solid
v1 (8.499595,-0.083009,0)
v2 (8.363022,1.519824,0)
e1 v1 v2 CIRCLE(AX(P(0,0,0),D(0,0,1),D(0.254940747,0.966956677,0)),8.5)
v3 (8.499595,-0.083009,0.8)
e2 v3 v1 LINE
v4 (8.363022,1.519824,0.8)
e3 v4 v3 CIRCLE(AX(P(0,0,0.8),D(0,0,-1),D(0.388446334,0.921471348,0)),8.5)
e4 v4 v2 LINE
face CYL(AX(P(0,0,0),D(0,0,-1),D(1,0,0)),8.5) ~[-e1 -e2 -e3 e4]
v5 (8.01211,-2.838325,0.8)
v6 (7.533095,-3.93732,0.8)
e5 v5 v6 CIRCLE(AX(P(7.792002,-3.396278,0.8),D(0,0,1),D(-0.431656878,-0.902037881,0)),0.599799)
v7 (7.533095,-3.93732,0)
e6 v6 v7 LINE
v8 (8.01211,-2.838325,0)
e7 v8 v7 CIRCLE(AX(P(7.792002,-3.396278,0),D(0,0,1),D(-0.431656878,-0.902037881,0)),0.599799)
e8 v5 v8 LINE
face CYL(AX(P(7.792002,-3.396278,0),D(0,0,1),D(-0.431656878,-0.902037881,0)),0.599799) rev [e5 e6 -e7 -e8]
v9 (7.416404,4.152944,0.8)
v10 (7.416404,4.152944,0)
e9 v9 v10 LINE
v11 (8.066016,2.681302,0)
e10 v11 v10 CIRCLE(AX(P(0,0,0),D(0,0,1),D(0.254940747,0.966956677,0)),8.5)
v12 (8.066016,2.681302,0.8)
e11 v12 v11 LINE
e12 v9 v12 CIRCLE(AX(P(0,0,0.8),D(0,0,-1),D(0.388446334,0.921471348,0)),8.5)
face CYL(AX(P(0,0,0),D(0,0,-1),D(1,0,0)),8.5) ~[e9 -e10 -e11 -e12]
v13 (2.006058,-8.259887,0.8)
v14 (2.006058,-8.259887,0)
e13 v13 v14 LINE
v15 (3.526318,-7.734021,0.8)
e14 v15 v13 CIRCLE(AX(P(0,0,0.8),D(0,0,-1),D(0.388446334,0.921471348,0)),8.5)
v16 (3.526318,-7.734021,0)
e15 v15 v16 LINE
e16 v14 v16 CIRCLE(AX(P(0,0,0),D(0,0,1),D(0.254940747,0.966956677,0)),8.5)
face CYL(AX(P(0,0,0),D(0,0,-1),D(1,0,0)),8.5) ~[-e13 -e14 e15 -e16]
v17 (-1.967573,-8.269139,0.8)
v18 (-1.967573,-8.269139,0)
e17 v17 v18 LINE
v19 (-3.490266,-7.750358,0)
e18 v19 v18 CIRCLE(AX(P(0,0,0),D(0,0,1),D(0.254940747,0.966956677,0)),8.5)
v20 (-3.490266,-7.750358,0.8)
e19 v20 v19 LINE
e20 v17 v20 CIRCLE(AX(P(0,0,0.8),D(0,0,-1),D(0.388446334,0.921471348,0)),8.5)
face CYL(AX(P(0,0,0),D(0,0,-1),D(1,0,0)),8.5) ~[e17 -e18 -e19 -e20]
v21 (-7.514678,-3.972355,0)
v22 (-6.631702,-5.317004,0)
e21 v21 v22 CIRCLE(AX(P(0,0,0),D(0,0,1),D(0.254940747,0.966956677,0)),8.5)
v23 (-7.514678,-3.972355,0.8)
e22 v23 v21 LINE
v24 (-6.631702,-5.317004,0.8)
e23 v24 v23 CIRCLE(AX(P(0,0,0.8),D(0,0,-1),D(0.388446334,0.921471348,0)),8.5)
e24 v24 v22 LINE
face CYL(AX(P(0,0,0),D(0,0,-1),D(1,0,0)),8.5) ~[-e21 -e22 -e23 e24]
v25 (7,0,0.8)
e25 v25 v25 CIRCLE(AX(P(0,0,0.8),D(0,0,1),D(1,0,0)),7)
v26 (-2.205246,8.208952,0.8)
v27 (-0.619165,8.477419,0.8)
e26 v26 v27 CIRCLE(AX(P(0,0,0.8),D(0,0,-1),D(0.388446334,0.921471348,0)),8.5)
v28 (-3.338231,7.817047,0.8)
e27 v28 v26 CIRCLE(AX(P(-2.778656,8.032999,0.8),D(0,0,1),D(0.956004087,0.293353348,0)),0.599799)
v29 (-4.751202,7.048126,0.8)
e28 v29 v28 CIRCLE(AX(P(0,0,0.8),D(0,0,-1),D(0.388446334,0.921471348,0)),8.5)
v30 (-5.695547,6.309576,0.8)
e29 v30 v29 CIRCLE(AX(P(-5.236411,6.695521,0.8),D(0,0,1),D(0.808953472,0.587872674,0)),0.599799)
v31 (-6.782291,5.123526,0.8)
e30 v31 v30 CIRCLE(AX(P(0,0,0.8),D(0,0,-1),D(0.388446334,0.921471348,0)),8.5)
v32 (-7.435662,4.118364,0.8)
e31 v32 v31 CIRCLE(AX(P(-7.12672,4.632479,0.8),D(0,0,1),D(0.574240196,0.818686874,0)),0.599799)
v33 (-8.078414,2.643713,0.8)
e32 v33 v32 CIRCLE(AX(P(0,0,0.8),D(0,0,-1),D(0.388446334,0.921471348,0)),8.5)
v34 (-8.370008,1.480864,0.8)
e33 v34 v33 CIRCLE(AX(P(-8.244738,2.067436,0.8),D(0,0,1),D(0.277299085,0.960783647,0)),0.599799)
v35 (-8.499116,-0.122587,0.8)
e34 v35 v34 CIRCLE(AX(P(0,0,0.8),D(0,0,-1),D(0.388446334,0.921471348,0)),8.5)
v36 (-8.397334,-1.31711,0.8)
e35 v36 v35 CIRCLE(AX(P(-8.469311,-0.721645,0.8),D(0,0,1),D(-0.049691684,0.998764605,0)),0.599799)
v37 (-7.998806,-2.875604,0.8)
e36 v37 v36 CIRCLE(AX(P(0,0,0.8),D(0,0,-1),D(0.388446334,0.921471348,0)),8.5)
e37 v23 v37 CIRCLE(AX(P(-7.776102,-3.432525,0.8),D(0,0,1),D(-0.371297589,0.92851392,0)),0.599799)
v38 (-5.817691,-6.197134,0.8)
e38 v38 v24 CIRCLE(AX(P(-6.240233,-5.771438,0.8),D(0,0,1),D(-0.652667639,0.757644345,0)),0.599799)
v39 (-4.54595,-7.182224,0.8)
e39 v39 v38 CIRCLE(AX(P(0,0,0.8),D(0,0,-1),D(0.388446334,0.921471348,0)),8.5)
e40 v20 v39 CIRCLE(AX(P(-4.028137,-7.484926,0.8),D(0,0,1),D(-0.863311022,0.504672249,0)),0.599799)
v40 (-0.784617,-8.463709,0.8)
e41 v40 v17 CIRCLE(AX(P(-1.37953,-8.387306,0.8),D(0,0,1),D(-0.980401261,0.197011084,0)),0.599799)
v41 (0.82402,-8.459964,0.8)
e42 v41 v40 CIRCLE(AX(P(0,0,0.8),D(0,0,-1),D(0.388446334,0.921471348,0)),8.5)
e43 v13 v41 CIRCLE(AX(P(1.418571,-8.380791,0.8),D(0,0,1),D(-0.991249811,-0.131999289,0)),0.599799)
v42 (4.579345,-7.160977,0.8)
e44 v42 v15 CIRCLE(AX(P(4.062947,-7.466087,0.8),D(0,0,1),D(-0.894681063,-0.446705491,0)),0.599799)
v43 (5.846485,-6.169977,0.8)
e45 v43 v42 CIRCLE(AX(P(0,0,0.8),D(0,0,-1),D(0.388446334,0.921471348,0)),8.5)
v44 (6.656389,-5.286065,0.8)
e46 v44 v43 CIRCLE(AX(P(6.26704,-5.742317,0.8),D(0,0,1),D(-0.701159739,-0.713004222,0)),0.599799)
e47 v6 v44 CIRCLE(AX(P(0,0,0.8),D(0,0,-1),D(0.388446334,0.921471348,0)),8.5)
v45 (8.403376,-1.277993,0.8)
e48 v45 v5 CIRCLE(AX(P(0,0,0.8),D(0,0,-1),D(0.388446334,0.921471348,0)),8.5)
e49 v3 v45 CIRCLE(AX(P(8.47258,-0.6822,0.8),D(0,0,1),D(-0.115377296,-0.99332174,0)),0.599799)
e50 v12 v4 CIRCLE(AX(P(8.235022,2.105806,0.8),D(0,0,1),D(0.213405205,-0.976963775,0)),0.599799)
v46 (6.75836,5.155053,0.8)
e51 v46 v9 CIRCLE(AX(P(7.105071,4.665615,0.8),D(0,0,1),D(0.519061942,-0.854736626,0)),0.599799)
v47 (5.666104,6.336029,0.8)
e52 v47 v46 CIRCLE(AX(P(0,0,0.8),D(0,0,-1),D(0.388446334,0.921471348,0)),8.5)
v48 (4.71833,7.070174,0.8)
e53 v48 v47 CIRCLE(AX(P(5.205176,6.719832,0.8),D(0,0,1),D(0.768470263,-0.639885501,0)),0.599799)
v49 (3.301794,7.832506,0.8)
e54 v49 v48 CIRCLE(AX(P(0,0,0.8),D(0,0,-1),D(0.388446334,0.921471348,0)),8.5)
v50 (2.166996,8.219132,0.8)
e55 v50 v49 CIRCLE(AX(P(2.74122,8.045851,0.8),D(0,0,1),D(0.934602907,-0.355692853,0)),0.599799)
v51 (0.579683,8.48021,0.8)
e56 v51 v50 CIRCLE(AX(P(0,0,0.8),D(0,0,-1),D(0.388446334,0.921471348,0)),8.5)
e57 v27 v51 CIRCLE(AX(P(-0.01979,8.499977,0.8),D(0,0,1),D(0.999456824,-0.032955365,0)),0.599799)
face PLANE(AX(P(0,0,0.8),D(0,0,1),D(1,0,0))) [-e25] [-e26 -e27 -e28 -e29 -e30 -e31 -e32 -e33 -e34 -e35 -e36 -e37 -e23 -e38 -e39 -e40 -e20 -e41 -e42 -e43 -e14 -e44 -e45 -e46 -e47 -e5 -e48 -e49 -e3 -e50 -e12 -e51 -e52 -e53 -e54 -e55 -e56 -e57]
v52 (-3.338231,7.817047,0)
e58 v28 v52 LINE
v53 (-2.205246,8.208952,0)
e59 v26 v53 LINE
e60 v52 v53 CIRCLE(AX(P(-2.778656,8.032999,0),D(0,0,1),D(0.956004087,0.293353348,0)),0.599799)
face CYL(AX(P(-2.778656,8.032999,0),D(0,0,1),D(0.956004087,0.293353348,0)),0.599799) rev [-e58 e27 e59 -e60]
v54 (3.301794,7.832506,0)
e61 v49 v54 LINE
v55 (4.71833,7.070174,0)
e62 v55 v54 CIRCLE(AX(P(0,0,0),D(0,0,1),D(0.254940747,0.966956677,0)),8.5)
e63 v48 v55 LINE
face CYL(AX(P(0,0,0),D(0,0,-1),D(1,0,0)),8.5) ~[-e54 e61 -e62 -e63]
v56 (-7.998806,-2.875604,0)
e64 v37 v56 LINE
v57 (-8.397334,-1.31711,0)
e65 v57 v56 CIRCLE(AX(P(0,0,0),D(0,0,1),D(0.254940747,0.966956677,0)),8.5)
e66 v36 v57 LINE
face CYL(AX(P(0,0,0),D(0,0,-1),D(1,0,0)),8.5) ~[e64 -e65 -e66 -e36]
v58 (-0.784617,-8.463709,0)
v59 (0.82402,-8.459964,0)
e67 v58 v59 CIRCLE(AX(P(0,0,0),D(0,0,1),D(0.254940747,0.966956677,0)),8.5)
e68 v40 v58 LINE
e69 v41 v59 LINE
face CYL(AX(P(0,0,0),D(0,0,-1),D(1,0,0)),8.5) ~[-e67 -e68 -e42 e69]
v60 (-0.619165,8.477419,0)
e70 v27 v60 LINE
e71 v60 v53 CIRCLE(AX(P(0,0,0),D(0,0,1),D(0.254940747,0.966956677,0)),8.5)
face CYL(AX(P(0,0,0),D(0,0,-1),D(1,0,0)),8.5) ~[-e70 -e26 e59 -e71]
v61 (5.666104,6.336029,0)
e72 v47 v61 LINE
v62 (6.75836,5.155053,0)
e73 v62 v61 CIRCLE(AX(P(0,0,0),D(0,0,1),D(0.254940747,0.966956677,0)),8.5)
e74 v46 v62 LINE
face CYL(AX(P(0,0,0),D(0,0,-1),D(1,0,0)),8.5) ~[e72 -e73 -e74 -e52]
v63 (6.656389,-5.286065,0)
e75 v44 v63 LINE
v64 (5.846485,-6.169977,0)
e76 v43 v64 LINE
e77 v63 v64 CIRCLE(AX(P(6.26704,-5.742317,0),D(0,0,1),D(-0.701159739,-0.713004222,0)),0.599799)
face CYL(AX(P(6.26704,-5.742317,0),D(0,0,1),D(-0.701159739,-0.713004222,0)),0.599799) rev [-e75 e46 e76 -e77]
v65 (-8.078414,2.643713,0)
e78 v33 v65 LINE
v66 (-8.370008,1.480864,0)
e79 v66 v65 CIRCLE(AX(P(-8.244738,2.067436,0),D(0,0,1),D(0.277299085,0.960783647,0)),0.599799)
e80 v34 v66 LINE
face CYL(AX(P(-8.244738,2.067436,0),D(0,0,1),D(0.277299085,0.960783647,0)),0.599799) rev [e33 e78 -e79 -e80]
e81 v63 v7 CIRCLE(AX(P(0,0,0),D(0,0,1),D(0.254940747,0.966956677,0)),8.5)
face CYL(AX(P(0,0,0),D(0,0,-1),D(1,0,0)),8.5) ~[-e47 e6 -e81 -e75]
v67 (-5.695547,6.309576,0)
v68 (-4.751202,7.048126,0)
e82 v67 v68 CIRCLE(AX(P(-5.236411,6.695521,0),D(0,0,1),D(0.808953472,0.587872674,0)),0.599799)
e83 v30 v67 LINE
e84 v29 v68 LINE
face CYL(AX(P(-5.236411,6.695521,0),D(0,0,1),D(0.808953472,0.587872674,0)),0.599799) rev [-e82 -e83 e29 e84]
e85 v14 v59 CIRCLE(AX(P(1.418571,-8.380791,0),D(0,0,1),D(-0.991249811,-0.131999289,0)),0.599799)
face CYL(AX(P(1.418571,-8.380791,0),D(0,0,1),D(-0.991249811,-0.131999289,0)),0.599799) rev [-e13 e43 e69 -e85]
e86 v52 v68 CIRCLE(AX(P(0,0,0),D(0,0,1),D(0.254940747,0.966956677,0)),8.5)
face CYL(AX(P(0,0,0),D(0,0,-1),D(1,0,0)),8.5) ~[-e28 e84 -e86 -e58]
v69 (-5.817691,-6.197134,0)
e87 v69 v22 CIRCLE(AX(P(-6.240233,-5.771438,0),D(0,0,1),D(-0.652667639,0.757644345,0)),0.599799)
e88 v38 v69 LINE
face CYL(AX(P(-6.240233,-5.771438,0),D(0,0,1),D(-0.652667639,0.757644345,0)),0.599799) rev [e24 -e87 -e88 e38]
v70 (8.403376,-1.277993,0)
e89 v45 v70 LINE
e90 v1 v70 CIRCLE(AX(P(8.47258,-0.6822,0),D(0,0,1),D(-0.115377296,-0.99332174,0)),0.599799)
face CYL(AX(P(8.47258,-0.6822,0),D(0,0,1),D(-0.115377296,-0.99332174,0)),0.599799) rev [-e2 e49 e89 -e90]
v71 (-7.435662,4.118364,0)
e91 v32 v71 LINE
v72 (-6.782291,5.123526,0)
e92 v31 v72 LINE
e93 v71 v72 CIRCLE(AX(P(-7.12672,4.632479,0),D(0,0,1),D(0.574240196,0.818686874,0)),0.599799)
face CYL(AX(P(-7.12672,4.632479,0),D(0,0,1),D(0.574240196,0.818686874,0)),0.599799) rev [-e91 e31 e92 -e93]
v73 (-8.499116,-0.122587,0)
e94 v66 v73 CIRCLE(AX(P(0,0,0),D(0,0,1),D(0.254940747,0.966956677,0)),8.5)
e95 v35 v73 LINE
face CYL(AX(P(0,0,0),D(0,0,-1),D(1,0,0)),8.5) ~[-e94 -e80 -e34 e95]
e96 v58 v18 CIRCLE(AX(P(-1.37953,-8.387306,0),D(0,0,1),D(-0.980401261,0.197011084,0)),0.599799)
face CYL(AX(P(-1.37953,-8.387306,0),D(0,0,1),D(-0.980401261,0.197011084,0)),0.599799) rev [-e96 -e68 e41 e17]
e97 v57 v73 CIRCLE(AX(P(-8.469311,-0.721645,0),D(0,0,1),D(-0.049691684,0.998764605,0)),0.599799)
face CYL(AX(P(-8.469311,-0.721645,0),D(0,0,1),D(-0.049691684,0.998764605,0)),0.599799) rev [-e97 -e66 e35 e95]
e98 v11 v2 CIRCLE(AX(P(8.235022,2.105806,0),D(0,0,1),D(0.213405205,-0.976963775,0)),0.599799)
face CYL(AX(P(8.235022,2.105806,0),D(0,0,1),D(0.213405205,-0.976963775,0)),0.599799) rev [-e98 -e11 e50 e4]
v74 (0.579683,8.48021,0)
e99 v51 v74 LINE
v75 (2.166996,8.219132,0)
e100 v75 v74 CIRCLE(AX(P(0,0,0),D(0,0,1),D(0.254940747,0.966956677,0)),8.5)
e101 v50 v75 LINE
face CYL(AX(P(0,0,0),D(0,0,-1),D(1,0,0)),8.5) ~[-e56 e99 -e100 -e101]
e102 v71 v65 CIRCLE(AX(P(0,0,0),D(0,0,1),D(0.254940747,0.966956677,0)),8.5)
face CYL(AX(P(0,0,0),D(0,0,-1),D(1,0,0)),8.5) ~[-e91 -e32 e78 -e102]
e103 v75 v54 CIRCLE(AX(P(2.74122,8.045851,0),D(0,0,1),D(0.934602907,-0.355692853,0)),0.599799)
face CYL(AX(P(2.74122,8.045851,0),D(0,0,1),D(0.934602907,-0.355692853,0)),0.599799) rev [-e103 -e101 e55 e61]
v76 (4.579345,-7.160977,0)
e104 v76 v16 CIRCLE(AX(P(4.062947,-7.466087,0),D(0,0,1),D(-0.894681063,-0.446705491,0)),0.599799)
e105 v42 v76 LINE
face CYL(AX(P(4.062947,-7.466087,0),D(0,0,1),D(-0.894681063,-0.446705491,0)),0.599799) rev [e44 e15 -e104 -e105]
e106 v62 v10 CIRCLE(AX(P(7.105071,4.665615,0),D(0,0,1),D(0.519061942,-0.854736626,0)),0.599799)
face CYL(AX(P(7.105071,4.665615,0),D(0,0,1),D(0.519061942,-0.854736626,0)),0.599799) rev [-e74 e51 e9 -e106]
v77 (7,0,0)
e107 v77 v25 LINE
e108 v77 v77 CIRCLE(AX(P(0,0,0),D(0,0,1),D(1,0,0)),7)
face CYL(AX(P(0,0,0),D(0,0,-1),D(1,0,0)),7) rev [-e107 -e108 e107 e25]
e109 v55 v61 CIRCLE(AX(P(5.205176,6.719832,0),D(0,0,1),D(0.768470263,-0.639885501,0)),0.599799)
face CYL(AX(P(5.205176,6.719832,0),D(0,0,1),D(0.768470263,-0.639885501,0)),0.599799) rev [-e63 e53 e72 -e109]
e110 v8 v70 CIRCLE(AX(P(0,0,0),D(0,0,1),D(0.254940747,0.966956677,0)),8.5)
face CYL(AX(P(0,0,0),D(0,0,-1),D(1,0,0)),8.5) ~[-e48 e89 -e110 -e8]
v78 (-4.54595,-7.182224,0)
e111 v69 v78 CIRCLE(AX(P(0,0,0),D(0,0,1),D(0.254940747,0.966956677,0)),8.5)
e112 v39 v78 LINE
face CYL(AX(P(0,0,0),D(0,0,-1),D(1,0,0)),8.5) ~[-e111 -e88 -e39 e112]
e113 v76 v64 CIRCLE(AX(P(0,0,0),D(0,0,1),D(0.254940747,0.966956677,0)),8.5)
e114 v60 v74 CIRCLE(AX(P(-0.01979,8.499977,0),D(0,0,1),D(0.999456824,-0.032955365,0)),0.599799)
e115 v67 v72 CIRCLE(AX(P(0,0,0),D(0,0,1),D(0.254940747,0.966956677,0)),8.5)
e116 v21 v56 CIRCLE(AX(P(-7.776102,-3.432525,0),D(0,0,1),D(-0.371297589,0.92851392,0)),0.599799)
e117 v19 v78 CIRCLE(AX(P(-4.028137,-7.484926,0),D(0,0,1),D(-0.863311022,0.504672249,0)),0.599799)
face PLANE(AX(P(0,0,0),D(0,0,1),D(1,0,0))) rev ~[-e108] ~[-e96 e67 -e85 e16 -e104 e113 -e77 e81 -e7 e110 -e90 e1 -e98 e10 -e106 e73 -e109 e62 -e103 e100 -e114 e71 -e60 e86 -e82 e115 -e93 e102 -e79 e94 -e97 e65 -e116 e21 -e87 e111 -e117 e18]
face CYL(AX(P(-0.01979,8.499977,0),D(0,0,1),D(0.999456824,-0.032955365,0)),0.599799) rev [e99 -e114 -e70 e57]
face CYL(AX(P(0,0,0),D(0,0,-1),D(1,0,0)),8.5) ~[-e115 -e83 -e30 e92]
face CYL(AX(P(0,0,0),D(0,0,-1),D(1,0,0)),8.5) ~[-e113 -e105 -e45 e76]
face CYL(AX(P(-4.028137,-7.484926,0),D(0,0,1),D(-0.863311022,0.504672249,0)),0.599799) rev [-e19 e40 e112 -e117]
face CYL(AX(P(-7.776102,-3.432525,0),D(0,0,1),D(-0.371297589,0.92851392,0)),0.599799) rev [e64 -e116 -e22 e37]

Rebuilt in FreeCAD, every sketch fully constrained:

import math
import FreeCAD as App
import Part
import Sketcher
Q = App.Units.Quantity

doc = App.newDocument("Part")
body = doc.addObject("PartDesign::Body", "Body")

# Sketch on XY plane
sketch1 = body.newObject("Sketcher::SketchObject", "Sketch")
sketch1.AttachmentSupport = (doc.getObject("XY_Plane"), [""])
sketch1.MapMode = "FlatFace"
sketch1.addGeometry([
    Part.Circle(App.Vector(0, 0, 0), App.Vector(0, 0, 1), 8),
    Part.Circle(App.Vector(0, 0, 0), App.Vector(0, 0, 1), 7),
], False)
sketch1.addConstraint([
    Sketcher.Constraint("Coincident", 0, 3, -1, 1),
    Sketcher.Constraint("Coincident", 1, 3, -1, 1),
    Sketcher.Constraint("Diameter", 0, Q("17 mm")),
    Sketcher.Constraint("Diameter", 1, Q("14 mm")),
])
pad1 = body.newObject("PartDesign::Pad", "Pad")
pad1.Profile = sketch1
pad1.Length = 0.8

# Sketch on XY plane
sketch2 = body.newObject("Sketcher::SketchObject", "Sketch001")
sketch2.AttachmentSupport = (doc.getObject("XY_Plane"), [""])
sketch2.MapMode = "FlatFace"
sketch2.addGeometry([
    Part.LineSegment(App.Vector(3.3, 7.8, 0), App.Vector(21.2, 54.8, 0)),  # 0
    Part.LineSegment(App.Vector(21.2, 54.8, 0), App.Vector(53.6, 150.1, 0)),  # 1
    Part.LineSegment(App.Vector(53.6, 150.1, 0), App.Vector(49.1, 151.6, 0)),  # 2
    Part.LineSegment(App.Vector(49.1, 151.6, 0), App.Vector(16.7, 56.4, 0)),  # 3
    Part.LineSegment(App.Vector(16.7, 56.4, 0), App.Vector(2.2, 8.2, 0)),  # 4
    Part.ArcOfCircle(Part.Circle(App.Vector(2.7, 8, 0), App.Vector(0, 0, 1), 0.6), math.radians(163), math.radians(339)),  # 5
], False)
sketch2.addConstraint([
    Sketcher.Constraint("Coincident", 0, 2, 1, 1),
    Sketcher.Constraint("Coincident", 1, 2, 2, 1),
    Sketcher.Constraint("Coincident", 2, 2, 3, 1),
    Sketcher.Constraint("Coincident", 3, 2, 4, 1),
    Sketcher.Constraint("Tangent", 4, 2, 5, 1),
    Sketcher.Constraint("Tangent", 5, 2, 0, 1),
    Sketcher.Constraint("Perpendicular", 1, 2),
    Sketcher.Constraint("Perpendicular", 2, 3),
    Sketcher.Constraint("Equal", 1, 3),
    Sketcher.Constraint("Equal", 0, 4),
    Sketcher.Constraint("Radius", 5, Q("0.599799 mm")),
    Sketcher.Constraint("DistanceY", 3, 2, 1, 2, Q("93.6947 mm")),
    Sketcher.Constraint("DistanceY", 4, 2, 3, 2, Q("48.155699 mm")),
    Sketcher.Constraint("DistanceX", -1, 1, 5, 3, Q("2.74122 mm")),
    Sketcher.Constraint("DistanceY", -1, 1, 5, 3, Q("8.045851 mm")),
    Sketcher.Constraint("DistanceX", -1, 1, 0, 2, Q("21.193332 mm")),
    Sketcher.Constraint("DistanceY", -1, 1, 1, 2, Q("150.069531 mm")),
])
pocket1 = body.newObject("PartDesign::Pocket", "Pocket")
pocket1.Profile = sketch2
pocket1.Length = 26.094813
pocket1.Midplane = True
doc.recompute()

polarpattern = body.newObject("PartDesign::PolarPattern", "PolarPattern")
polarpattern.Originals = [pocket1]
polarpattern.Axis = (doc.getObject("Z_Axis"), [""])
polarpattern.Angle = 360
polarpattern.Occurrences = 19
body.Tip = polarpattern

doc.recompute()
